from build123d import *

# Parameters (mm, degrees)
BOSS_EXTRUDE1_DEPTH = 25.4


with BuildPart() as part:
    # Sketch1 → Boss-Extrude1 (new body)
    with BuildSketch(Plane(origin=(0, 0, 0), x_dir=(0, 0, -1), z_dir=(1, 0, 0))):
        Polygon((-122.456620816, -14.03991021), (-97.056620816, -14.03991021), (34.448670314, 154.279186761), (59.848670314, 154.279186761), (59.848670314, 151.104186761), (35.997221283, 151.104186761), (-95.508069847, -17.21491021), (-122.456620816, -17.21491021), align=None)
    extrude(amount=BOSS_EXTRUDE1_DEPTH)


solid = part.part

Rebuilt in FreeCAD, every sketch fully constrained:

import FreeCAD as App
import Part
import Sketcher
from FreeCAD import Vector
Q = App.Units.Quantity


def add_polygon(sketch, points):
    """Adds a closed chain of lines whose ends are joined by coincident constraints."""
    first, n = sketch.GeometryCount, len(points)
    for a, b in zip(points, points[1:] + points[:1]):
        sketch.addGeometry(Part.LineSegment(App.Vector(*a, 0), App.Vector(*b, 0)), False)
    for i in range(n):
        sketch.addConstraint(Sketcher.Constraint("Coincident", first + i, 2, first + (i + 1) % n, 1))

doc = App.newDocument("Part")
body = doc.addObject("PartDesign::Body", "Body")

# Sketch on YZ plane
sketch1 = body.newObject("Sketcher::SketchObject", "Sketch")
sketch1.AttachmentSupport = (doc.getObject("YZ_Plane"), [""])
sketch1.MapMode = "FlatFace"
add_polygon(sketch1, [(-14, 97.1), (-14, 122.5), (-17.2, 122.5), (-17.2, 95.5), (151.1, -36), (151.1, -59.8), (154.3, -59.8), (154.3, -34.4)])  # lines 0-7
sketch1.addConstraint([
    Sketcher.Constraint("Vertical", 0),
    Sketcher.Constraint("Horizontal", 1),
    Sketcher.Constraint("Vertical", 2),
    Sketcher.Constraint("Vertical", 4),
    Sketcher.Constraint("Horizontal", 5),
    Sketcher.Constraint("Vertical", 6),
    Sketcher.Constraint("Parallel", 3, 7),
    Sketcher.Constraint("Equal", 1, 5),
    Sketcher.Constraint("Equal", 0, 6),
    Sketcher.Constraint("DistanceY", 0, 1, 0, 2, Q("1 in")),
    Sketcher.Constraint("Angle", 3, Q("-38 deg")),
    Sketcher.Constraint("DistanceX", 1, 2, 1, 1, Q("0.125 in")),
    Sketcher.Constraint("Distance", 3, 213.6),
    Sketcher.Constraint("DistanceY", 2, 2, 2, 1, 26.948551),
    Sketcher.Constraint("DistanceX", 0, 2, -1, 1, 14.03991),
    Sketcher.Constraint("DistanceY", -1, 1, 0, 2, 122.456621),
])
pad1 = body.newObject("PartDesign::Pad", "Pad")
pad1.Profile = sketch1
pad1.Length = Q("1 in")

doc.recompute()
